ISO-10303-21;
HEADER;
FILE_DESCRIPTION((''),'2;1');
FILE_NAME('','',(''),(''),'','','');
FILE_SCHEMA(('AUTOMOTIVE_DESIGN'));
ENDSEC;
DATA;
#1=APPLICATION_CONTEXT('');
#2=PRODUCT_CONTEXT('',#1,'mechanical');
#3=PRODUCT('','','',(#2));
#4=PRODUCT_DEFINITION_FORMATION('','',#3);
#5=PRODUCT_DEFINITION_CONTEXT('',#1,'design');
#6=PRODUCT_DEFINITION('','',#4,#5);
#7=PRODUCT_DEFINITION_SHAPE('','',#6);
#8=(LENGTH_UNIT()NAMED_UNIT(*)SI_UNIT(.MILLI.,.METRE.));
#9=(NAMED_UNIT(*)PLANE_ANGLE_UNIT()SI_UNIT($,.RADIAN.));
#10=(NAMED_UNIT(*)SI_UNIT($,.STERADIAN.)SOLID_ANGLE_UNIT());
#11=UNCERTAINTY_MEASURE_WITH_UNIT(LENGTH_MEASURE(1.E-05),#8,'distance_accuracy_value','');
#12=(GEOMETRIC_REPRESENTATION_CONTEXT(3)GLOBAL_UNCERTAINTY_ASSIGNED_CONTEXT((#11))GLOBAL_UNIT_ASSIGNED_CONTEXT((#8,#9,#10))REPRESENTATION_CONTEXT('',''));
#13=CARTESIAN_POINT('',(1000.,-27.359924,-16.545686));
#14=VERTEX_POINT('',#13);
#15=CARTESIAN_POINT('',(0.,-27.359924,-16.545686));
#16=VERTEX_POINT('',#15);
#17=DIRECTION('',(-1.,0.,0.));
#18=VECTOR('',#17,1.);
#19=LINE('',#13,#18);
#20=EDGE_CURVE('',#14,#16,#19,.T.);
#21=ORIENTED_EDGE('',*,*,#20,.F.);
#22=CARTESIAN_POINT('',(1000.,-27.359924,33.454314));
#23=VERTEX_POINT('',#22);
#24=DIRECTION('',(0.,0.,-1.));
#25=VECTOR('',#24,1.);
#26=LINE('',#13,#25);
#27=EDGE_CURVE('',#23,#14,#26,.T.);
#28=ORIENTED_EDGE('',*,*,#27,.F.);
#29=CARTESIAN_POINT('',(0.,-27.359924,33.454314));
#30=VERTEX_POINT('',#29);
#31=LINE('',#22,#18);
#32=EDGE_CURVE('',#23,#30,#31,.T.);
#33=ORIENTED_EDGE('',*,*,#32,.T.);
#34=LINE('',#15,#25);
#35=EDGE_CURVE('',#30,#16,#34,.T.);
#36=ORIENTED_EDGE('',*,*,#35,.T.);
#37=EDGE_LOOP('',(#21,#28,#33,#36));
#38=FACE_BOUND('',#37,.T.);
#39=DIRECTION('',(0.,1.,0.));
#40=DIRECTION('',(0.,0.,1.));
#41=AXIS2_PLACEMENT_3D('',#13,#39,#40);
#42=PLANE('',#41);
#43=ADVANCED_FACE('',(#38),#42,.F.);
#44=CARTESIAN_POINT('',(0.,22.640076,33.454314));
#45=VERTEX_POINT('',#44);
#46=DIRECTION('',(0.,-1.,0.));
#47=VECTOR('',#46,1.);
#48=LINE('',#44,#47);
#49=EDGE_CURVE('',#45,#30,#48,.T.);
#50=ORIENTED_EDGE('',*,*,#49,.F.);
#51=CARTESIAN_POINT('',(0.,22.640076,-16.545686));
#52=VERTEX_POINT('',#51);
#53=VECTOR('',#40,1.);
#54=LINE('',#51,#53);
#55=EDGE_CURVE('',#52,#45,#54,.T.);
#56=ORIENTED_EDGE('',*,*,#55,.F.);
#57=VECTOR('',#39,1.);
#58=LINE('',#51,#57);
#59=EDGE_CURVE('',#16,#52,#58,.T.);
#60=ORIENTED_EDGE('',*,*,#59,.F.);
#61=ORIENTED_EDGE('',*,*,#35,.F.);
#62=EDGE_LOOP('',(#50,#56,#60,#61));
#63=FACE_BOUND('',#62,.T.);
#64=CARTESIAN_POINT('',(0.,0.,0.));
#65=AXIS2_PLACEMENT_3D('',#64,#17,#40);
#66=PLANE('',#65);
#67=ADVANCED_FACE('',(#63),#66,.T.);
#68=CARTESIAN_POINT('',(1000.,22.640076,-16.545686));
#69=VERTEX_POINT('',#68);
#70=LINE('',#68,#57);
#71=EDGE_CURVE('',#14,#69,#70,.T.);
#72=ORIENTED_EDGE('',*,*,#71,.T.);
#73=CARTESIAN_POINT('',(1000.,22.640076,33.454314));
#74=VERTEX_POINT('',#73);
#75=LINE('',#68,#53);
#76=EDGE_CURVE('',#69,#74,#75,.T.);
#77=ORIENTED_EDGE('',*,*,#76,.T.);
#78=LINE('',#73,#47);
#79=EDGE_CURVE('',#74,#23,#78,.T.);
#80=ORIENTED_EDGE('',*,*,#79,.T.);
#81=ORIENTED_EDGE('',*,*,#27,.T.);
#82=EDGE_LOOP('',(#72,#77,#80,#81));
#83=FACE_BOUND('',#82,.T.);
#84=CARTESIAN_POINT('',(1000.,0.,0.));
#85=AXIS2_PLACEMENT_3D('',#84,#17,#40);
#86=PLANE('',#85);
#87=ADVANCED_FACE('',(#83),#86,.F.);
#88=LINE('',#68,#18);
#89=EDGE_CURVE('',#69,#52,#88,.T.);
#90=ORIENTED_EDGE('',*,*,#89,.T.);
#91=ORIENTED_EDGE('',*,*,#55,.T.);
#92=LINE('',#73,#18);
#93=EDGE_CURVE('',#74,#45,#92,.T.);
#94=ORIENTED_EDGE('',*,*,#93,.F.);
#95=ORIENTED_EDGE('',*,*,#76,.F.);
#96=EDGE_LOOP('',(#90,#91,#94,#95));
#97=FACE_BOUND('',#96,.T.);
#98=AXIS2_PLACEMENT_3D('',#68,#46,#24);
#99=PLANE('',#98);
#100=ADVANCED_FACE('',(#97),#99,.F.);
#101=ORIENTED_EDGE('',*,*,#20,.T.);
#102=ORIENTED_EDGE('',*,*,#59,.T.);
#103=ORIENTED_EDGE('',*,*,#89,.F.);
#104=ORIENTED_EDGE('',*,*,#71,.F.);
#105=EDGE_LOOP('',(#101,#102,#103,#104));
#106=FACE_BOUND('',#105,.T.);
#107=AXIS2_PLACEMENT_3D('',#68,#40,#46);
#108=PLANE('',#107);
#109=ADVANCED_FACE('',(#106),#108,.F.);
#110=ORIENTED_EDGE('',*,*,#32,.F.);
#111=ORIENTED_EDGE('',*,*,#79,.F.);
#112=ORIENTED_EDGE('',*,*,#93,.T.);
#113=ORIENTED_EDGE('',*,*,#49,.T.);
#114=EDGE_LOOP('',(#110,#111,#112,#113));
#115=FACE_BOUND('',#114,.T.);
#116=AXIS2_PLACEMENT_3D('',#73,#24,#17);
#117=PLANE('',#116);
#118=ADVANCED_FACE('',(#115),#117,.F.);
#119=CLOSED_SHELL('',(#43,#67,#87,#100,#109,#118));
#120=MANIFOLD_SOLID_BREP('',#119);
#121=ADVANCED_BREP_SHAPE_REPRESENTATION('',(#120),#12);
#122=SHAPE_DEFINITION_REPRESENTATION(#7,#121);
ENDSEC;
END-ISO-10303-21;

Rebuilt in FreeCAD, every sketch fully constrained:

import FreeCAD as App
import Part
import Sketcher


def add_polygon(sketch, points):
    """Adds a closed chain of lines whose ends are joined by coincident constraints."""
    first, n = sketch.GeometryCount, len(points)
    for a, b in zip(points, points[1:] + points[:1]):
        sketch.addGeometry(Part.LineSegment(App.Vector(*a, 0), App.Vector(*b, 0)), False)
    for i in range(n):
        sketch.addConstraint(Sketcher.Constraint("Coincident", first + i, 2, first + (i + 1) % n, 1))

doc = App.newDocument("Part")
body = doc.addObject("PartDesign::Body", "Body")

# Sketch on YZ plane
sketch1 = body.newObject("Sketcher::SketchObject", "Sketch")
sketch1.AttachmentSupport = (doc.getObject("YZ_Plane"), [""])
sketch1.MapMode = "FlatFace"
add_polygon(sketch1, [(23, 33), (-27, 33), (-27, -17), (23, -17)])  # lines 0-3
sketch1.addConstraint(Sketcher.Constraint("Horizontal", 0))
sketch1.addConstraint(Sketcher.Constraint("Vertical", 1))
sketch1.addConstraint(Sketcher.Constraint("Horizontal", 2))
sketch1.addConstraint(Sketcher.Constraint("Vertical", 3))
sketch1.addConstraint(Sketcher.Constraint("Equal", 2, 1))
sketch1.addConstraint(Sketcher.Constraint("DistanceX", 0, 2, 0, 1, 50.0))
sketch1.addConstraint(Sketcher.Constraint("DistanceX", 0, 2, -1, 1, 27.359924))
sketch1.addConstraint(Sketcher.Constraint("DistanceY", -1, 1, 0, 2, 33.454314))
pad1 = body.newObject("PartDesign::Pad", "Pad")
pad1.Profile = sketch1
pad1.Length = 1000

doc.recompute()
